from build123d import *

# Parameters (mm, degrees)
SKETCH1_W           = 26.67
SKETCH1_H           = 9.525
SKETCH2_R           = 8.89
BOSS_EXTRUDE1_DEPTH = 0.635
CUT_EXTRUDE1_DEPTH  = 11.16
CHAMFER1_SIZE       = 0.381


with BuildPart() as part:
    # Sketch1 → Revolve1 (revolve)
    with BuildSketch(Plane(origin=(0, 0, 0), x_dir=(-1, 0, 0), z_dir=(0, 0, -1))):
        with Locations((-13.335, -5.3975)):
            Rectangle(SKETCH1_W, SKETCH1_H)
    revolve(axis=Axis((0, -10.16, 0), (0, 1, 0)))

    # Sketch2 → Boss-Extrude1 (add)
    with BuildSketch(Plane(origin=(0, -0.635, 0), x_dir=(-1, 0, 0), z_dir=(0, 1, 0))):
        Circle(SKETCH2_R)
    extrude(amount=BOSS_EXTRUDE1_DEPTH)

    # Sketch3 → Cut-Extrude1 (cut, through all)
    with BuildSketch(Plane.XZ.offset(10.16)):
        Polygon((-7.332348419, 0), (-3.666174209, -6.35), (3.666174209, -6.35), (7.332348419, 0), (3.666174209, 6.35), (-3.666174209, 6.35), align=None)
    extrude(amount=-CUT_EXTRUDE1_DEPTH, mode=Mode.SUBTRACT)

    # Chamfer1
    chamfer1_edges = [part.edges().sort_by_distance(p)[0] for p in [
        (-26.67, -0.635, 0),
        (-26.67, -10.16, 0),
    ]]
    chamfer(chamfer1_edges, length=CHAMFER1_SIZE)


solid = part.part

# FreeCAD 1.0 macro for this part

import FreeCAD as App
import Part
import Sketcher

V = App.Vector
Q = App.Units.Quantity


def edges_at(feature, points):
    """Names of the edges that pass closest to the given points."""
    edges = feature.Shape.Edges
    near = lambda p: min(range(len(edges)), key=lambda i: edges[i].distToShape(Part.Vertex(*p))[0])
    return sorted({f"Edge{near(p) + 1}" for p in points})

doc = App.newDocument("Part")
params = doc.addObject("Spreadsheet::Sheet", "Params")
for row, (alias, value) in enumerate([
    ("sketch1_width", "1.05 in"),
    ("sketch1_height", "0.375 in"),
    ("revolution_angle", "360 deg"),
    ("sketch2_diameter", "0.7 in"),
    ("pad1_length", "0.025 in"),
    ("chamfer_size", "0.015 in"),
], start=1):
    params.set(f"A{row}", alias)
    params.set(f"B{row}", "=" + value)
    params.setAlias(f"B{row}", alias)

body = doc.addObject("PartDesign::Body", "Body")

# Sketch on XY plane
sketch1 = doc.addObject("Sketcher::SketchObject", "Sketch")
body.addObject(sketch1)
sketch1.AttachmentSupport = (doc.XY_Plane, [""])
sketch1.MapMode = "FlatFace"
sketch1.addGeometry([
    Part.LineSegment(V(27, -1, 0), V(27, -10, 0)),
    Part.LineSegment(V(27, -10, 0), V(0, -10, 0)),
    Part.LineSegment(V(0, -10, 0), V(0, -1, 0)),
    Part.LineSegment(V(0, -1, 0), V(27, -1, 0)),
], False)
sketch1.addConstraint([
    Sketcher.Constraint("Coincident", 0, 2, 1, 1),
    Sketcher.Constraint("Coincident", 1, 2, 2, 1),
    Sketcher.Constraint("Coincident", 2, 2, 3, 1),
    Sketcher.Constraint("Coincident", 3, 2, 0, 1),
    Sketcher.Constraint("Vertical", 0),
    Sketcher.Constraint("Horizontal", 1),
    Sketcher.Constraint("Vertical", 2),
    Sketcher.Constraint("Horizontal", 3),
    Sketcher.Constraint("PointOnObject", 1, 2, -2),
    Sketcher.Constraint("DistanceX", 1, 2, 1, 1, Q("1.05 in")),
    Sketcher.Constraint("DistanceY", 0, 2, -1, 1, Q("0.4 in")),
    Sketcher.Constraint("DistanceY", 0, 2, 0, 1, Q("0.375 in")),
])
sketch1.setExpression("Constraints[9]", "Params.sketch1_width")
sketch1.setExpression("Constraints[11]", "Params.sketch1_height")
revolution = doc.addObject("PartDesign::Revolution", "Revolution")
body.addObject(revolution)
revolution.Profile = sketch1
revolution.ReferenceAxis = (sketch1, ["V_Axis"])
revolution.setExpression("Angle", "Params.revolution_angle")

# Sketch on XZ plane
sketch2 = doc.addObject("Sketcher::SketchObject", "Sketch001")
body.addObject(sketch2)
sketch2.AttachmentSupport = (doc.XZ_Plane, [""])
sketch2.MapMode = "FlatFace"
sketch2.AttachmentOffset = App.Placement(V(0, 0, 0.025 * 25.4), App.Rotation())
sketch2.addGeometry(Part.Circle(V(0, 0, 0), V(0, 0, 1), 9), False)
sketch2.addConstraint([
    Sketcher.Constraint("Coincident", 0, 3, -1, 1),
    Sketcher.Constraint("Diameter", 0, Q("0.7 in")),
])
sketch2.setExpression("Constraints[1]", "Params.sketch2_diameter")
pad1 = doc.addObject("PartDesign::Pad", "Pad")
body.addObject(pad1)
pad1.Profile = sketch2
pad1.setExpression("Length", "Params.pad1_length")
pad1.Reversed = True

# Sketch on XZ plane
sketch3 = doc.addObject("Sketcher::SketchObject", "Sketch002")
body.addObject(sketch3)
sketch3.AttachmentSupport = (doc.XZ_Plane, [""])
sketch3.MapMode = "FlatFace"
sketch3.AttachmentOffset = App.Placement(V(0, 0, 0.4 * 25.4), App.Rotation())
sketch3.addGeometry([
    Part.LineSegment(V(-7, 0, 0), V(-4, -6, 0)),  # 0
    Part.LineSegment(V(-4, -6, 0), V(4, -6, 0)),  # 1
    Part.LineSegment(V(4, -6, 0), V(7, 0, 0)),  # 2
    Part.LineSegment(V(7, 0, 0), V(4, 6, 0)),  # 3
    Part.LineSegment(V(4, 6, 0), V(-4, 6, 0)),  # 4
    Part.LineSegment(V(-4, 6, 0), V(-7, 0, 0)),  # 5
], False)
sketch3.addConstraint([
    Sketcher.Constraint("Coincident", 0, 2, 1, 1),
    Sketcher.Constraint("Coincident", 1, 2, 2, 1),
    Sketcher.Constraint("Coincident", 2, 2, 3, 1),
    Sketcher.Constraint("Coincident", 3, 2, 4, 1),
    Sketcher.Constraint("Coincident", 4, 2, 5, 1),
    Sketcher.Constraint("Coincident", 5, 2, 0, 1),
    Sketcher.Constraint("Horizontal", 1),
    Sketcher.Constraint("Horizontal", 4),
    Sketcher.Constraint("Symmetric", 0, 2, 3, 2, -1, 1),
    Sketcher.Constraint("Symmetric", 2, 2, 5, 2, -1, 1),
    Sketcher.Constraint("PointOnObject", 2, 2, -1),
    Sketcher.Constraint("Parallel", 2, 5),
    Sketcher.Constraint("Vertical", 1, 2, 3, 2),
    Sketcher.Constraint("Angle", 0, Q("-60 deg")),
    Sketcher.Constraint("DistanceY", 1, 2, 3, 2, Q("0.5 in")),
    Sketcher.Constraint("DistanceX", 1, 1, 1, 2, 7.332348),
])
pocket1 = doc.addObject("PartDesign::Pocket", "Pocket")
body.addObject(pocket1)
pocket1.Profile = sketch3
pocket1.Type = "ThroughAll"
doc.recompute()

chamfer = doc.addObject("PartDesign::Chamfer", "Chamfer")
body.addObject(chamfer)
chamfer.Base = (pocket1, edges_at(pocket1, [(-26.67, -0.635, 0), (-26.67, -10.16, 0)]))
chamfer.setExpression("Size", "Params.chamfer_size")

doc.recompute()
